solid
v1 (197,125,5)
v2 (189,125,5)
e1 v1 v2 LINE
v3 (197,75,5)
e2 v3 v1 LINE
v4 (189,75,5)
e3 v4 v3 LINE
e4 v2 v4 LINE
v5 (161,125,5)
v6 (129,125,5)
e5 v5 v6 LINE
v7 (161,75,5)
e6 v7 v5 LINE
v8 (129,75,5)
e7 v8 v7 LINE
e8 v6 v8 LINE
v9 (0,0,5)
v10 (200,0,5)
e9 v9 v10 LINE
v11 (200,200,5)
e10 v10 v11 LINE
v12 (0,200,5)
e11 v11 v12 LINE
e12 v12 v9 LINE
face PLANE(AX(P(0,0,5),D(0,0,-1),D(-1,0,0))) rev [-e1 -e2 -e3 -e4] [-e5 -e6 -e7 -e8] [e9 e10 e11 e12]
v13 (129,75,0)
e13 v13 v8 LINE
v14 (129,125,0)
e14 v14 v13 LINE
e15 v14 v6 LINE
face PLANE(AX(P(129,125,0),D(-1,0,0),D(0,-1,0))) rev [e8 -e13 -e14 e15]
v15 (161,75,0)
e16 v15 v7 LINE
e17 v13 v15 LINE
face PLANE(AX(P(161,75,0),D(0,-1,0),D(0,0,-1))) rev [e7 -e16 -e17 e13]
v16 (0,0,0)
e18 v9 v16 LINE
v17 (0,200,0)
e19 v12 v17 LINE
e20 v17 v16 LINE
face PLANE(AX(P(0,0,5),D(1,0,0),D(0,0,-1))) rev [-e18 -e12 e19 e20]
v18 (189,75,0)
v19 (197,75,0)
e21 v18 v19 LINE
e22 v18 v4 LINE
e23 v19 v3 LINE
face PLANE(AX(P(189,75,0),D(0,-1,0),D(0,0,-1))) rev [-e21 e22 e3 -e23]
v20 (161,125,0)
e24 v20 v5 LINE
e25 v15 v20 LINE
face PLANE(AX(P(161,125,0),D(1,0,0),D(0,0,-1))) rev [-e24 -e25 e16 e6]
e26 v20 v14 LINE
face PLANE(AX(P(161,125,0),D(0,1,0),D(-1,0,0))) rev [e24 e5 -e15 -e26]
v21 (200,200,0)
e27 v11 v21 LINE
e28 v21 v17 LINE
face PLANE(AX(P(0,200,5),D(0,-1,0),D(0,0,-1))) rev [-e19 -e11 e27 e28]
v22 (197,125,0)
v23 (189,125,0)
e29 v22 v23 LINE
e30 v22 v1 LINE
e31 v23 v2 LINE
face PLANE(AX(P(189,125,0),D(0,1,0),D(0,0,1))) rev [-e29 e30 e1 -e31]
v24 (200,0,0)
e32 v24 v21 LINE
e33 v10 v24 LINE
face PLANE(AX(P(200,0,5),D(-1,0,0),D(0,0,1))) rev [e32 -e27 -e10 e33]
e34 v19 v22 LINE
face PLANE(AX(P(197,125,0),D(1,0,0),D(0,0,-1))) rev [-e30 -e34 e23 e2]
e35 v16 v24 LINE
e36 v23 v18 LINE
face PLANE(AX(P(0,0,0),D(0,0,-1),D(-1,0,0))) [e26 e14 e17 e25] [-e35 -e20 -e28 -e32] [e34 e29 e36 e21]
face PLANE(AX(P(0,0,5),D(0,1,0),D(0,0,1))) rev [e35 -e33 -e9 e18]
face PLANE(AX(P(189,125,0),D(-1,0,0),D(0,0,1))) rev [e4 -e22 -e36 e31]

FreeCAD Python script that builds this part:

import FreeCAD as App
import Part
import Sketcher

V = App.Vector

doc = App.newDocument("Part")
body = doc.addObject("PartDesign::Body", "Body")

sketch1 = body.newObject("Sketcher::SketchObject", "Sketch")
sketch1.AttachmentSupport = (doc.getObject("XY_Plane"), [""])
sketch1.MapMode = "FlatFace"
sketch1.addGeometry([
    Part.LineSegment(V(0, 200, 0), V(0, 0, 0)),
    Part.LineSegment(V(0, 0, 0), V(200, 0, 0)),
    Part.LineSegment(V(200, 0, 0), V(200, 200, 0)),
    Part.LineSegment(V(200, 200, 0), V(0, 200, 0)),
], False)
sketch1.addConstraint([
    Sketcher.Constraint("Coincident", 0, 2, 1, 1),
    Sketcher.Constraint("Coincident", 1, 2, 2, 1),
    Sketcher.Constraint("Coincident", 2, 2, 3, 1),
    Sketcher.Constraint("Coincident", 3, 2, 0, 1),
    Sketcher.Constraint("Vertical", 0),
    Sketcher.Constraint("Horizontal", 1),
    Sketcher.Constraint("Vertical", 2),
    Sketcher.Constraint("Horizontal", 3),
    Sketcher.Constraint("Coincident", 0, 2, -1, 1),
    Sketcher.Constraint("Equal", 3, 0),
    Sketcher.Constraint("DistanceX", 1, 1, 1, 2, 200.0),
])
pad1 = body.newObject("PartDesign::Pad", "Pad")
pad1.Profile = sketch1
pad1.Length = 5

sketch2 = body.newObject("Sketcher::SketchObject", "Sketch001")
sketch2.AttachmentSupport = (doc.getObject("XY_Plane"), [""])
sketch2.MapMode = "FlatFace"
sketch2.AttachmentOffset = App.Placement(V(0, 0, 5), App.Rotation())
sketch2.addGeometry([
    Part.LineSegment(V(189, 125, 0), V(189, 75, 0)),
    Part.LineSegment(V(189, 75, 0), V(197, 75, 0)),
    Part.LineSegment(V(197, 75, 0), V(197, 125, 0)),
    Part.LineSegment(V(197, 125, 0), V(189, 125, 0)),
], False)
sketch2.addConstraint([
    Sketcher.Constraint("Coincident", 0, 2, 1, 1),
    Sketcher.Constraint("Coincident", 1, 2, 2, 1),
    Sketcher.Constraint("Coincident", 2, 2, 3, 1),
    Sketcher.Constraint("Coincident", 3, 2, 0, 1),
    Sketcher.Constraint("Vertical", 0),
    Sketcher.Constraint("Horizontal", 1),
    Sketcher.Constraint("Vertical", 2),
    Sketcher.Constraint("Horizontal", 3),
    Sketcher.Constraint("DistanceX", 1, 1, 1, 2, 8.0),
    Sketcher.Constraint("DistanceY", 0, 2, 0, 1, 50.0),
    Sketcher.Constraint("DistanceX", -1, 1, 0, 2, 189.0),
    Sketcher.Constraint("DistanceY", -1, 1, 0, 2, 75.0),
])
pocket1 = body.newObject("PartDesign::Pocket", "Pocket")
pocket1.Profile = sketch2
pocket1.Length = 5

sketch3 = body.newObject("Sketcher::SketchObject", "Sketch002")
sketch3.AttachmentSupport = (doc.getObject("XY_Plane"), [""])
sketch3.MapMode = "FlatFace"
sketch3.AttachmentOffset = App.Placement(V(0, 0, 5), App.Rotation())
sketch3.addGeometry([
    Part.LineSegment(V(129, 125, 0), V(129, 75, 0)),
    Part.LineSegment(V(129, 75, 0), V(161, 75, 0)),
    Part.LineSegment(V(161, 75, 0), V(161, 125, 0)),
    Part.LineSegment(V(161, 125, 0), V(129, 125, 0)),
], False)
sketch3.addConstraint([
    Sketcher.Constraint("Coincident", 0, 2, 1, 1),
    Sketcher.Constraint("Coincident", 1, 2, 2, 1),
    Sketcher.Constraint("Coincident", 2, 2, 3, 1),
    Sketcher.Constraint("Coincident", 3, 2, 0, 1),
    Sketcher.Constraint("Vertical", 0),
    Sketcher.Constraint("Horizontal", 1),
    Sketcher.Constraint("Vertical", 2),
    Sketcher.Constraint("Horizontal", 3),
    Sketcher.Constraint("DistanceX", 1, 1, 1, 2, 32.0),
    Sketcher.Constraint("DistanceY", 0, 2, 0, 1, 50.0),
    Sketcher.Constraint("DistanceX", -1, 1, 0, 2, 129.0),
    Sketcher.Constraint("DistanceY", -1, 1, 0, 2, 75.0),
])
pocket2 = body.newObject("PartDesign::Pocket", "Pocket001")
pocket2.Profile = sketch3
pocket2.Length = 5

doc.recompute()
